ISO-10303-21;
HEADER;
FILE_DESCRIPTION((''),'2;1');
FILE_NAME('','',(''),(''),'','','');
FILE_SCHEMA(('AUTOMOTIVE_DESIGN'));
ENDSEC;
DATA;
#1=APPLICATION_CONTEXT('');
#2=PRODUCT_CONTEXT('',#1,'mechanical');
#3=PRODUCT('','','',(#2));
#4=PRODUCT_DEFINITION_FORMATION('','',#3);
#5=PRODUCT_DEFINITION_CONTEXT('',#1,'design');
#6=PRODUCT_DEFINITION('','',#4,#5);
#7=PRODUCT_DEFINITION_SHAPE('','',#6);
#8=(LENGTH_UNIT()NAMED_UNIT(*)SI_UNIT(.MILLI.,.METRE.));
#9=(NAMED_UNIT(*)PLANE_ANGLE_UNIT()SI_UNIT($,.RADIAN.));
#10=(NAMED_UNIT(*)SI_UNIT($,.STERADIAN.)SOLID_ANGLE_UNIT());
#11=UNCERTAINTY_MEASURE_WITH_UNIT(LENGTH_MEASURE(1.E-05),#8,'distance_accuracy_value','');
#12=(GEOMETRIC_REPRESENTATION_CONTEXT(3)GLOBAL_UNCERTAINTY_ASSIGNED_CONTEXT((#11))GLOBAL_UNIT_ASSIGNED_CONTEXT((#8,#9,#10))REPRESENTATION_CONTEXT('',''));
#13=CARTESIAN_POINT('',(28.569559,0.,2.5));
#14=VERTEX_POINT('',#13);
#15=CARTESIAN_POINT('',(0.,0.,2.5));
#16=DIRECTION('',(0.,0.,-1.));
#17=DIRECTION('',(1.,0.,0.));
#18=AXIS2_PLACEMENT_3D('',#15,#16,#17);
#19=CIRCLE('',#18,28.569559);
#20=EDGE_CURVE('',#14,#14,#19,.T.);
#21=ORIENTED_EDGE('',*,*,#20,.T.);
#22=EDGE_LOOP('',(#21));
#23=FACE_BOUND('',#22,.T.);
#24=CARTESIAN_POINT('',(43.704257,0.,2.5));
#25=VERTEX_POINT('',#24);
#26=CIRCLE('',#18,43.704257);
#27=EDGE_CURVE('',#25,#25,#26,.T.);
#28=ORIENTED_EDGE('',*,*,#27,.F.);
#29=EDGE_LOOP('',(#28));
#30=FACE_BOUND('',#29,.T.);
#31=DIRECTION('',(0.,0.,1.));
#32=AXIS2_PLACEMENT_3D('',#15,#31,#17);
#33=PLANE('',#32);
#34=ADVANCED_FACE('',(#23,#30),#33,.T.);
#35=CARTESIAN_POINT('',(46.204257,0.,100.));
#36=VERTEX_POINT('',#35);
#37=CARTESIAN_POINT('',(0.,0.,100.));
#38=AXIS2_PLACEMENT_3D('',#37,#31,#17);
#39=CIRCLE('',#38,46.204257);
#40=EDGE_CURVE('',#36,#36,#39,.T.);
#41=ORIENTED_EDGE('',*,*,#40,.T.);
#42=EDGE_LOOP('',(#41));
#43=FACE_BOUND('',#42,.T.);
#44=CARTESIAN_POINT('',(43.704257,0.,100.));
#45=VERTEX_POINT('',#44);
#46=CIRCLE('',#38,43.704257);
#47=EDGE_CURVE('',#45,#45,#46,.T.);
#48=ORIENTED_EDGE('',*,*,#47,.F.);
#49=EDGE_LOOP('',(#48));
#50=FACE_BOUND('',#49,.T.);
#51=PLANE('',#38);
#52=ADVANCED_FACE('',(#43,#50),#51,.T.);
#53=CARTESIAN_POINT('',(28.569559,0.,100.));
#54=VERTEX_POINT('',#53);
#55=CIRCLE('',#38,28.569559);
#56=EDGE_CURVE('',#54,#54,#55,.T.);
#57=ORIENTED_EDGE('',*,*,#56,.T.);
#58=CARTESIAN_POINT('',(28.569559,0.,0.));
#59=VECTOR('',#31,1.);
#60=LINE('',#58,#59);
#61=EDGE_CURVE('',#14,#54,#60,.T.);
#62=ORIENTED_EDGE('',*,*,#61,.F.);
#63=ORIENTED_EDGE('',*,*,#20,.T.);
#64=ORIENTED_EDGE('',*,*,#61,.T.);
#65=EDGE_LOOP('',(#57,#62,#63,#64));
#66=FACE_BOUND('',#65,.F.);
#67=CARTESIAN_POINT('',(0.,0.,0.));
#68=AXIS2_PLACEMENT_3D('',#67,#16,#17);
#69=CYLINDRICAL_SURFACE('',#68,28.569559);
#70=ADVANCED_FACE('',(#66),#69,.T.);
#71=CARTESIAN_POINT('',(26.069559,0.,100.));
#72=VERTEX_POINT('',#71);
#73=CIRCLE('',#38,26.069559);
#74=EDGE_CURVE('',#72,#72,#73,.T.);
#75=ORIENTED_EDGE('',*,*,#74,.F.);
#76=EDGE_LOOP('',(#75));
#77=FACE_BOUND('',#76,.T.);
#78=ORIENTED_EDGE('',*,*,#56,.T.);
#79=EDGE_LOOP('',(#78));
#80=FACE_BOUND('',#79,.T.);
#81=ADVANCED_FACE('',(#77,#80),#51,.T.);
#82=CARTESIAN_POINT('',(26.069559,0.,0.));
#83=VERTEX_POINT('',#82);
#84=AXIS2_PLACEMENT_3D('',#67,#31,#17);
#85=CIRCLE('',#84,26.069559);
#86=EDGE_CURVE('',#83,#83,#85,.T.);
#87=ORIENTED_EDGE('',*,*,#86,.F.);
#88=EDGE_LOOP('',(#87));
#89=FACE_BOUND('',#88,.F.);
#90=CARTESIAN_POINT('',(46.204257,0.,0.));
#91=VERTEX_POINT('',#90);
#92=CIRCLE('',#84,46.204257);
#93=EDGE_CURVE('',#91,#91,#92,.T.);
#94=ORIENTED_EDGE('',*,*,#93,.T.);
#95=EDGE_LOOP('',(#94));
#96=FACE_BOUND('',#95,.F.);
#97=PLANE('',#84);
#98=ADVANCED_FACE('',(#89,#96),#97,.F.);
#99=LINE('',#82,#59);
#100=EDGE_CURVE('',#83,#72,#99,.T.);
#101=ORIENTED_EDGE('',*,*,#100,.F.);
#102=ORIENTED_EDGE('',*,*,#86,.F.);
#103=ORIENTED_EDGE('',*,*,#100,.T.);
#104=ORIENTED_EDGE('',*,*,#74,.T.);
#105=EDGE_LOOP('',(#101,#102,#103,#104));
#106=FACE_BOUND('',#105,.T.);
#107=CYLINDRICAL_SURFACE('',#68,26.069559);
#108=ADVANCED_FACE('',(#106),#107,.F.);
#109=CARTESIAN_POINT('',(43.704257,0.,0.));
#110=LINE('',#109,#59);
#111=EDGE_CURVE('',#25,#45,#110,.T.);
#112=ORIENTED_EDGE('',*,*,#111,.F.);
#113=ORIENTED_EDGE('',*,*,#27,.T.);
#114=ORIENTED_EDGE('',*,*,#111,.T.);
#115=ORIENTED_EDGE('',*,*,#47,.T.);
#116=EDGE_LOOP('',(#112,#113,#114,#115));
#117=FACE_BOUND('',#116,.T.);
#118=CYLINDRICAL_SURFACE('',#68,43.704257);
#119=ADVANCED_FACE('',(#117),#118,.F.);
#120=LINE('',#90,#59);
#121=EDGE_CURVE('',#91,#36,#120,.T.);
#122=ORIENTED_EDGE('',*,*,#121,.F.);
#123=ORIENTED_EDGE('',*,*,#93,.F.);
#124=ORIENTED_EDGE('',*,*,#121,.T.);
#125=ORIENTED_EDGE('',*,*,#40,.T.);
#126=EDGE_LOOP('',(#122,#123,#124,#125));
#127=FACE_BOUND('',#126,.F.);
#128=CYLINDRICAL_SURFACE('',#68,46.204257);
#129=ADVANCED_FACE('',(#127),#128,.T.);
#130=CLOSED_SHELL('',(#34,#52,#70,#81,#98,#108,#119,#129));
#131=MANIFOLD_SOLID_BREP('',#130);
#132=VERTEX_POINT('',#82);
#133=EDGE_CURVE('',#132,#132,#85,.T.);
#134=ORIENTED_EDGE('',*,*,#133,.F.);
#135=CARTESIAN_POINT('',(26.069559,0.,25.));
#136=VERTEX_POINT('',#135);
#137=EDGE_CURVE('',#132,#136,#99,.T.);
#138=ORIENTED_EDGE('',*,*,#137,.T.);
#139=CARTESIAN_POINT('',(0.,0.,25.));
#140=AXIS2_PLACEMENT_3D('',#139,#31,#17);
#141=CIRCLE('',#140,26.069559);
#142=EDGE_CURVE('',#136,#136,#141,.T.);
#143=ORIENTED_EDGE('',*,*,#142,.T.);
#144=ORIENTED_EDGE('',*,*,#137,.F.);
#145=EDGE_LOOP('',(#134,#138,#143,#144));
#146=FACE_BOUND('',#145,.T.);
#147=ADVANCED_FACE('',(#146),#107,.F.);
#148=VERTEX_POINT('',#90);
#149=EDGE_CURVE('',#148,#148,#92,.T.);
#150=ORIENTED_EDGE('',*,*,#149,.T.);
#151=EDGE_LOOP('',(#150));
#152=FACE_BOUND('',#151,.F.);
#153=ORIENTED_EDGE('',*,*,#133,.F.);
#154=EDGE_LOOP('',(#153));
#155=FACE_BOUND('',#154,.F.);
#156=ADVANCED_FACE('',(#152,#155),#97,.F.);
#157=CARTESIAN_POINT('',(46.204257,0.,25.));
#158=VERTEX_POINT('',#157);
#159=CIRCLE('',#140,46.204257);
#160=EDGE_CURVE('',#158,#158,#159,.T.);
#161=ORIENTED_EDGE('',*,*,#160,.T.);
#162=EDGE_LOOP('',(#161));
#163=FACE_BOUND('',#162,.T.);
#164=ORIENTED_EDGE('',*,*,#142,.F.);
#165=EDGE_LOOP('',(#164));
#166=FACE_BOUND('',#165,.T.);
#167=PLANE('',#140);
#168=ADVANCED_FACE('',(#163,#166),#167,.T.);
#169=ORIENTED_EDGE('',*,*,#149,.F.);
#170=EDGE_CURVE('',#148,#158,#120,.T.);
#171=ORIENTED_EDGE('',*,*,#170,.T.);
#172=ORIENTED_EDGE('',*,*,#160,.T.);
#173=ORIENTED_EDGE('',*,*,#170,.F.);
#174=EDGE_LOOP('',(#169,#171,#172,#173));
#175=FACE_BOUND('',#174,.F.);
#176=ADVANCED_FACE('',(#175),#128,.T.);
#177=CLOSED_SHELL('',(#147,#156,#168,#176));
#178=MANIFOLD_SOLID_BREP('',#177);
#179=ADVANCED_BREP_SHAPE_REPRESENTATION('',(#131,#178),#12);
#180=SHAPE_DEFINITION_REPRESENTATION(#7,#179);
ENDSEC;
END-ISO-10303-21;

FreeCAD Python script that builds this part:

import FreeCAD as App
import Part
import Sketcher

V = App.Vector
Q = App.Units.Quantity


def faces_at(feature, points):
    """Names of the faces that lie closest to the given points."""
    faces = feature.Shape.Faces
    near = lambda p: min(range(len(faces)), key=lambda i: faces[i].distToShape(Part.Vertex(*p))[0])
    return sorted({f"Face{near(p) + 1}" for p in points})

doc = App.newDocument("Part")
body = doc.addObject("PartDesign::Body", "Body")

# Sketch on XY plane
sketch1 = body.newObject("Sketcher::SketchObject", "Sketch")
sketch1.AttachmentSupport = (doc.getObject("XY_Plane"), [""])
sketch1.MapMode = "FlatFace"
sketch1.addGeometry(Part.Circle(V(0, 0, 0), V(0, 0, 1), 46), False)
sketch1.addGeometry(Part.Circle(V(0, 0, 0), V(0, 0, 1), 26), False)
sketch1.addConstraint(Sketcher.Constraint("Coincident", 0, 3, -1, 1))
sketch1.addConstraint(Sketcher.Constraint("Coincident", 1, 3, -1, 1))
sketch1.addConstraint(Sketcher.Constraint("Diameter", 1, Q("52.139118 mm")))
sketch1.addConstraint(Sketcher.Constraint("Diameter", 0, Q("92.408514 mm")))
pad1 = body.newObject("PartDesign::Pad", "Pad")
pad1.Profile = sketch1
pad1.Length = 25
body2 = doc.addObject("PartDesign::Body", "Body001")

# Sketch on XY plane
sketch2 = body2.newObject("Sketcher::SketchObject", "Sketch001")
sketch2.AttachmentSupport = (doc.getObject("XY_Plane001"), [""])
sketch2.MapMode = "FlatFace"
sketch2.addGeometry(Part.Circle(V(0, 0, 0), V(0, 0, 1), 46), False)
sketch2.addGeometry(Part.Circle(V(0, 0, 0), V(0, 0, 1), 26), False)
sketch2.addConstraint(Sketcher.Constraint("Coincident", 0, 3, -1, 1))
sketch2.addConstraint(Sketcher.Constraint("Coincident", 1, 3, -1, 1))
sketch2.addConstraint(Sketcher.Constraint("Diameter", 1, Q("52.139118 mm")))
sketch2.addConstraint(Sketcher.Constraint("Diameter", 0, Q("92.408514 mm")))
pad2 = body2.newObject("PartDesign::Pad", "Pad001")
pad2.Profile = sketch2
pad2.Length = 100
doc.recompute()

thickness = body2.newObject("PartDesign::Thickness", "Thickness")
thickness.Base = (pad2, faces_at(pad2, [(-18.482, -18.482, 100)]))
thickness.Value = 2.5
thickness.Reversed = True
thickness.Join = "Arc"

doc.recompute()
